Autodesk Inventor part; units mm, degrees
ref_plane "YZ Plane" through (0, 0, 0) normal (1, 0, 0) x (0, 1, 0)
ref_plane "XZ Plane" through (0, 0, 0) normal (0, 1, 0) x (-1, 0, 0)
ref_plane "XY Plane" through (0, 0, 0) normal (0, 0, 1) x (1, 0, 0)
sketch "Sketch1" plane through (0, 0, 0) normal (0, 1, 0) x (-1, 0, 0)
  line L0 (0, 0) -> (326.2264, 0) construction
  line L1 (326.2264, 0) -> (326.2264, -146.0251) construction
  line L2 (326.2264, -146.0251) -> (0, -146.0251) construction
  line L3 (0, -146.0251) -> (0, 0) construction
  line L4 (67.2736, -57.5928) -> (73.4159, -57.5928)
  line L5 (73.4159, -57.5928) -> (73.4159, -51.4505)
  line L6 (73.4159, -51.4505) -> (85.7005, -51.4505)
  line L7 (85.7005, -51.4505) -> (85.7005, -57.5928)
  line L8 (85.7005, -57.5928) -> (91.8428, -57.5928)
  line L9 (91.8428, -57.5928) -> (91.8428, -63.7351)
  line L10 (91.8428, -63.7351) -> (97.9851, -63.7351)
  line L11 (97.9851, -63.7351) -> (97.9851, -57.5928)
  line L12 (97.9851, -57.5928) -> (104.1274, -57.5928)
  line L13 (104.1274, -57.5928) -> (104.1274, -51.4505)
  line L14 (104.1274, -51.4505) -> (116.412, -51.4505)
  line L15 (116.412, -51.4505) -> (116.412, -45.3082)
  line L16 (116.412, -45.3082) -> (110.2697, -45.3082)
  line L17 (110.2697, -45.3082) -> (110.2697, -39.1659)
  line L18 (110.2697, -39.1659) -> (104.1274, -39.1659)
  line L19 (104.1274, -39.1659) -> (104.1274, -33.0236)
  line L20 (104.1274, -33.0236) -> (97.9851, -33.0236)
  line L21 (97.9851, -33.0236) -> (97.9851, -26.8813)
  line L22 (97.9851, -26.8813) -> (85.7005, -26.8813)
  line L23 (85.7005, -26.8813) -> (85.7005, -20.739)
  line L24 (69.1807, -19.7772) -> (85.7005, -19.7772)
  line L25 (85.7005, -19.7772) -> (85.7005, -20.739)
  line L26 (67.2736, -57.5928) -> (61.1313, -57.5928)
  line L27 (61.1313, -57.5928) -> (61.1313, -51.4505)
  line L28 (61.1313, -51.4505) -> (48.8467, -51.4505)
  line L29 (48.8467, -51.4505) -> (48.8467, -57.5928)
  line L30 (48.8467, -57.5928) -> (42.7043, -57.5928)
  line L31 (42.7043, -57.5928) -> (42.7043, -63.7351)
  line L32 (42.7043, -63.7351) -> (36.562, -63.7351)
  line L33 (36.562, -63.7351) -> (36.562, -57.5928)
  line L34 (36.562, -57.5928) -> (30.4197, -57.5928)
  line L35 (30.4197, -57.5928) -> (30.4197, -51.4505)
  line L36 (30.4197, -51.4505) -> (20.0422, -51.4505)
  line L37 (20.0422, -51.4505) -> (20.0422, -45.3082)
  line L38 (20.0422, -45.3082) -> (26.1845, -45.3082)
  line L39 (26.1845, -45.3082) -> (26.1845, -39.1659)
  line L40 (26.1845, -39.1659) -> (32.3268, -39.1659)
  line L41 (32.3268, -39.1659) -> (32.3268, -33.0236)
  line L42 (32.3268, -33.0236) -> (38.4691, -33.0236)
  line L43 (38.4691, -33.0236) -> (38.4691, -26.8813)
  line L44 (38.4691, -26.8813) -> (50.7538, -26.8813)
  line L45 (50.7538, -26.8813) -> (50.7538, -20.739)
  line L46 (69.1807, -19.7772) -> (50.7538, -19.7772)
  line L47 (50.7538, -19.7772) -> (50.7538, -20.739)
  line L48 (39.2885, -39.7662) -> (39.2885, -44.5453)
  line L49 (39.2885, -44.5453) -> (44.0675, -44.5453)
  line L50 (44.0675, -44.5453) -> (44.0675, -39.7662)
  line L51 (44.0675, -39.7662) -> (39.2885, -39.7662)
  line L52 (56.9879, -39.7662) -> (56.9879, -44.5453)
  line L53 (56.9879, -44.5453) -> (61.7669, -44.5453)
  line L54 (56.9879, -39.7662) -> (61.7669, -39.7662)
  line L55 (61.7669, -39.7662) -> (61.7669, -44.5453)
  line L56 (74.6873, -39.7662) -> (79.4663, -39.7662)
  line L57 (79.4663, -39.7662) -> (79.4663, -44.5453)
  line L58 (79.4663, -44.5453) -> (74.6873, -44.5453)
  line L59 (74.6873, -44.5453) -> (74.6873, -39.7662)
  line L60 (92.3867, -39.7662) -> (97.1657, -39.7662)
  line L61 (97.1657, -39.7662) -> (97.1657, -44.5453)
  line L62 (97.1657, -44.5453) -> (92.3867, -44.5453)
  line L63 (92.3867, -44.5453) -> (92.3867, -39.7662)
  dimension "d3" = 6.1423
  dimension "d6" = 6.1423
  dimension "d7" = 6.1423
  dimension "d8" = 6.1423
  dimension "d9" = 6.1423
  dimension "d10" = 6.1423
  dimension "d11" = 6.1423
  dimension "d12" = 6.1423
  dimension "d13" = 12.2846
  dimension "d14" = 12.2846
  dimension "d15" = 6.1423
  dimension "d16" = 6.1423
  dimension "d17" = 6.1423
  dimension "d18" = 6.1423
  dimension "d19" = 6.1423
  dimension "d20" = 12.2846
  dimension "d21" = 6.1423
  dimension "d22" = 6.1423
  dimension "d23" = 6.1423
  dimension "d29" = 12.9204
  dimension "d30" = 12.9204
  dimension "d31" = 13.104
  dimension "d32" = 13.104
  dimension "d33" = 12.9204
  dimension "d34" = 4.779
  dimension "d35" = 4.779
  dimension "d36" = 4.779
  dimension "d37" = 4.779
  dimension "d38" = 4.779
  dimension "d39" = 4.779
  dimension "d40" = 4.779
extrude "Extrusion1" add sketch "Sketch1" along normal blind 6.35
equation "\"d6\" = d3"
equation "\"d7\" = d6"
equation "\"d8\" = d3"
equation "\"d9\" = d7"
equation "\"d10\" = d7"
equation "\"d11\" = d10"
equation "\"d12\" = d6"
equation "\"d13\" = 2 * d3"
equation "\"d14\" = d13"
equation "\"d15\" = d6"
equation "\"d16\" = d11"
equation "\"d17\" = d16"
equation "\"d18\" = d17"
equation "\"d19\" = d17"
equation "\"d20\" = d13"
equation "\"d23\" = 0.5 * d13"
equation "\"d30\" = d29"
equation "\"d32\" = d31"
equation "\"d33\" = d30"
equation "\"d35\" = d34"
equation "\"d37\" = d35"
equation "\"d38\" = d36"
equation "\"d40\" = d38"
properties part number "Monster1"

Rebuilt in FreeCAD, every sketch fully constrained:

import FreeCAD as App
import Part
import Sketcher
from FreeCAD import Vector
Q = App.Units.Quantity

doc = App.newDocument("Part")
body = doc.addObject("PartDesign::Body", "Body")

# Sketch on XZ plane
sketch1 = body.newObject("Sketcher::SketchObject", "Sketch")
sketch1.AttachmentSupport = (doc.getObject("XZ_Plane"), [""])
sketch1.MapMode = "FlatFace"
sketch1.addGeometry([
    Part.LineSegment(Vector(-61.1313, -57.5928, 0), Vector(-73.4159, -57.5928, 0)),  # 0
    Part.LineSegment(Vector(-73.4159, -57.5928, 0), Vector(-73.4159, -51.4505, 0)),  # 1
    Part.LineSegment(Vector(-73.4159, -51.4505, 0), Vector(-85.7005, -51.4505, 0)),  # 2
    Part.LineSegment(Vector(-85.7005, -51.4505, 0), Vector(-85.7005, -57.5928, 0)),  # 3
    Part.LineSegment(Vector(-85.7005, -57.5928, 0), Vector(-91.8428, -57.5928, 0)),  # 4
    Part.LineSegment(Vector(-91.8428, -57.5928, 0), Vector(-91.8428, -63.7351, 0)),  # 5
    Part.LineSegment(Vector(-91.8428, -63.7351, 0), Vector(-97.9851, -63.7351, 0)),  # 6
    Part.LineSegment(Vector(-97.9851, -63.7351, 0), Vector(-97.9851, -57.5928, 0)),  # 7
    Part.LineSegment(Vector(-97.9851, -57.5928, 0), Vector(-104.1274, -57.5928, 0)),  # 8
    Part.LineSegment(Vector(-104.1274, -57.5928, 0), Vector(-104.1274, -51.4505, 0)),  # 9
    Part.LineSegment(Vector(-104.1274, -51.4505, 0), Vector(-116.412, -51.4505, 0)),  # 10
    Part.LineSegment(Vector(-116.412, -51.4505, 0), Vector(-116.412, -45.3082, 0)),  # 11
    Part.LineSegment(Vector(-116.412, -45.3082, 0), Vector(-110.2697, -45.3082, 0)),  # 12
    Part.LineSegment(Vector(-110.2697, -45.3082, 0), Vector(-110.2697, -39.1659, 0)),  # 13
    Part.LineSegment(Vector(-110.2697, -39.1659, 0), Vector(-104.1274, -39.1659, 0)),  # 14
    Part.LineSegment(Vector(-104.1274, -39.1659, 0), Vector(-104.1274, -33.0236, 0)),  # 15
    Part.LineSegment(Vector(-104.1274, -33.0236, 0), Vector(-97.9851, -33.0236, 0)),  # 16
    Part.LineSegment(Vector(-97.9851, -33.0236, 0), Vector(-97.9851, -26.8813, 0)),  # 17
    Part.LineSegment(Vector(-97.9851, -26.8813, 0), Vector(-85.7005, -26.8813, 0)),  # 18
    Part.LineSegment(Vector(-85.7005, -26.8813, 0), Vector(-85.7005, -19.7772, 0)),  # 19
    Part.LineSegment(Vector(-85.7005, -19.7772, 0), Vector(-50.7538, -19.7772, 0)),  # 20
    Part.LineSegment(Vector(-50.7538, -19.7772, 0), Vector(-50.7538, -26.8813, 0)),  # 21
    Part.LineSegment(Vector(-50.7538, -26.8813, 0), Vector(-38.4691, -26.8813, 0)),  # 22
    Part.LineSegment(Vector(-38.4691, -26.8813, 0), Vector(-38.4691, -33.0236, 0)),  # 23
    Part.LineSegment(Vector(-38.4691, -33.0236, 0), Vector(-32.3268, -33.0236, 0)),  # 24
    Part.LineSegment(Vector(-32.3268, -33.0236, 0), Vector(-32.3268, -39.1659, 0)),  # 25
    Part.LineSegment(Vector(-32.3268, -39.1659, 0), Vector(-26.1845, -39.1659, 0)),  # 26
    Part.LineSegment(Vector(-26.1845, -39.1659, 0), Vector(-26.1845, -45.3082, 0)),  # 27
    Part.LineSegment(Vector(-26.1845, -45.3082, 0), Vector(-20.0422, -45.3082, 0)),  # 28
    Part.LineSegment(Vector(-20.0422, -45.3082, 0), Vector(-20.0422, -51.4505, 0)),  # 29
    Part.LineSegment(Vector(-20.0422, -51.4505, 0), Vector(-30.4197, -51.4505, 0)),  # 30
    Part.LineSegment(Vector(-30.4197, -51.4505, 0), Vector(-30.4197, -57.5928, 0)),  # 31
    Part.LineSegment(Vector(-30.4197, -57.5928, 0), Vector(-36.562, -57.5928, 0)),  # 32
    Part.LineSegment(Vector(-36.562, -57.5928, 0), Vector(-36.562, -63.7351, 0)),  # 33
    Part.LineSegment(Vector(-36.562, -63.7351, 0), Vector(-42.7043, -63.7351, 0)),  # 34
    Part.LineSegment(Vector(-42.7043, -63.7351, 0), Vector(-42.7043, -57.5928, 0)),  # 35
    Part.LineSegment(Vector(-42.7043, -57.5928, 0), Vector(-48.8467, -57.5928, 0)),  # 36
    Part.LineSegment(Vector(-48.8467, -57.5928, 0), Vector(-48.8467, -51.4505, 0)),  # 37
    Part.LineSegment(Vector(-48.8467, -51.4505, 0), Vector(-61.1313, -51.4505, 0)),  # 38
    Part.LineSegment(Vector(-61.1313, -51.4505, 0), Vector(-61.1313, -57.5928, 0)),  # 39
    Part.LineSegment(Vector(-39.2885, -44.5453, 0), Vector(-39.2885, -39.7662, 0)),  # 40
    Part.LineSegment(Vector(-39.2885, -39.7662, 0), Vector(-44.0675, -39.7662, 0)),  # 41
    Part.LineSegment(Vector(-44.0675, -39.7662, 0), Vector(-44.0675, -44.5453, 0)),  # 42
    Part.LineSegment(Vector(-44.0675, -44.5453, 0), Vector(-39.2885, -44.5453, 0)),  # 43
    Part.LineSegment(Vector(-56.9879, -44.5453, 0), Vector(-56.9879, -39.7662, 0)),  # 44
    Part.LineSegment(Vector(-56.9879, -39.7662, 0), Vector(-61.7669, -39.7662, 0)),  # 45
    Part.LineSegment(Vector(-61.7669, -39.7662, 0), Vector(-61.7669, -44.5453, 0)),  # 46
    Part.LineSegment(Vector(-61.7669, -44.5453, 0), Vector(-56.9879, -44.5453, 0)),  # 47
    Part.LineSegment(Vector(-74.6873, -44.5453, 0), Vector(-74.6873, -39.7662, 0)),  # 48
    Part.LineSegment(Vector(-74.6873, -39.7662, 0), Vector(-79.4663, -39.7662, 0)),  # 49
    Part.LineSegment(Vector(-79.4663, -39.7662, 0), Vector(-79.4663, -44.5453, 0)),  # 50
    Part.LineSegment(Vector(-79.4663, -44.5453, 0), Vector(-74.6873, -44.5453, 0)),  # 51
    Part.LineSegment(Vector(-92.3867, -44.5453, 0), Vector(-92.3867, -39.7662, 0)),  # 52
    Part.LineSegment(Vector(-92.3867, -39.7662, 0), Vector(-97.1657, -39.7662, 0)),  # 53
    Part.LineSegment(Vector(-97.1657, -39.7662, 0), Vector(-97.1657, -44.5453, 0)),  # 54
    Part.LineSegment(Vector(-97.1657, -44.5453, 0), Vector(-92.3867, -44.5453, 0)),  # 55
], False)
sketch1.addConstraint([
    Sketcher.Constraint("Coincident", 0, 2, 1, 1),
    Sketcher.Constraint("Coincident", 1, 2, 2, 1),
    Sketcher.Constraint("Coincident", 2, 2, 3, 1),
    Sketcher.Constraint("Coincident", 3, 2, 4, 1),
    Sketcher.Constraint("Coincident", 4, 2, 5, 1),
    Sketcher.Constraint("Coincident", 5, 2, 6, 1),
    Sketcher.Constraint("Coincident", 6, 2, 7, 1),
    Sketcher.Constraint("Coincident", 7, 2, 8, 1),
    Sketcher.Constraint("Coincident", 8, 2, 9, 1),
    Sketcher.Constraint("Coincident", 9, 2, 10, 1),
    Sketcher.Constraint("Coincident", 10, 2, 11, 1),
    Sketcher.Constraint("Coincident", 11, 2, 12, 1),
    Sketcher.Constraint("Coincident", 12, 2, 13, 1),
    Sketcher.Constraint("Coincident", 13, 2, 14, 1),
    Sketcher.Constraint("Coincident", 14, 2, 15, 1),
    Sketcher.Constraint("Coincident", 15, 2, 16, 1),
    Sketcher.Constraint("Coincident", 16, 2, 17, 1),
    Sketcher.Constraint("Coincident", 17, 2, 18, 1),
    Sketcher.Constraint("Coincident", 18, 2, 19, 1),
    Sketcher.Constraint("Coincident", 19, 2, 20, 1),
    Sketcher.Constraint("Coincident", 20, 2, 21, 1),
    Sketcher.Constraint("Coincident", 21, 2, 22, 1),
    Sketcher.Constraint("Coincident", 22, 2, 23, 1),
    Sketcher.Constraint("Coincident", 23, 2, 24, 1),
    Sketcher.Constraint("Coincident", 24, 2, 25, 1),
    Sketcher.Constraint("Coincident", 25, 2, 26, 1),
    Sketcher.Constraint("Coincident", 26, 2, 27, 1),
    Sketcher.Constraint("Coincident", 27, 2, 28, 1),
    Sketcher.Constraint("Coincident", 28, 2, 29, 1),
    Sketcher.Constraint("Coincident", 29, 2, 30, 1),
    Sketcher.Constraint("Coincident", 30, 2, 31, 1),
    Sketcher.Constraint("Coincident", 31, 2, 32, 1),
    Sketcher.Constraint("Coincident", 32, 2, 33, 1),
    Sketcher.Constraint("Coincident", 33, 2, 34, 1),
    Sketcher.Constraint("Coincident", 34, 2, 35, 1),
    Sketcher.Constraint("Coincident", 35, 2, 36, 1),
    Sketcher.Constraint("Coincident", 36, 2, 37, 1),
    Sketcher.Constraint("Coincident", 37, 2, 38, 1),
    Sketcher.Constraint("Coincident", 38, 2, 39, 1),
    Sketcher.Constraint("Coincident", 39, 2, 0, 1),
    Sketcher.Constraint("Coincident", 40, 2, 41, 1),
    Sketcher.Constraint("Coincident", 41, 2, 42, 1),
    Sketcher.Constraint("Coincident", 42, 2, 43, 1),
    Sketcher.Constraint("Coincident", 43, 2, 40, 1),
    Sketcher.Constraint("Coincident", 44, 2, 45, 1),
    Sketcher.Constraint("Coincident", 45, 2, 46, 1),
    Sketcher.Constraint("Coincident", 46, 2, 47, 1),
    Sketcher.Constraint("Coincident", 47, 2, 44, 1),
    Sketcher.Constraint("Coincident", 48, 2, 49, 1),
    Sketcher.Constraint("Coincident", 49, 2, 50, 1),
    Sketcher.Constraint("Coincident", 50, 2, 51, 1),
    Sketcher.Constraint("Coincident", 51, 2, 48, 1),
    Sketcher.Constraint("Coincident", 52, 2, 53, 1),
    Sketcher.Constraint("Coincident", 53, 2, 54, 1),
    Sketcher.Constraint("Coincident", 54, 2, 55, 1),
    Sketcher.Constraint("Coincident", 55, 2, 52, 1),
    Sketcher.Constraint("Horizontal", 0),
    Sketcher.Constraint("Vertical", 1),
    Sketcher.Constraint("Horizontal", 2),
    Sketcher.Constraint("Vertical", 3),
    Sketcher.Constraint("Horizontal", 4),
    Sketcher.Constraint("Vertical", 5),
    Sketcher.Constraint("Horizontal", 6),
    Sketcher.Constraint("Vertical", 7),
    Sketcher.Constraint("Horizontal", 8),
    Sketcher.Constraint("Vertical", 9),
    Sketcher.Constraint("Horizontal", 10),
    Sketcher.Constraint("Vertical", 11),
    Sketcher.Constraint("Horizontal", 12),
    Sketcher.Constraint("Vertical", 13),
    Sketcher.Constraint("Horizontal", 14),
    Sketcher.Constraint("Vertical", 15),
    Sketcher.Constraint("Horizontal", 16),
    Sketcher.Constraint("Vertical", 17),
    Sketcher.Constraint("Horizontal", 18),
    Sketcher.Constraint("Vertical", 19),
    Sketcher.Constraint("Horizontal", 20),
    Sketcher.Constraint("Vertical", 21),
    Sketcher.Constraint("Horizontal", 22),
    Sketcher.Constraint("Vertical", 23),
    Sketcher.Constraint("Horizontal", 24),
    Sketcher.Constraint("Vertical", 25),
    Sketcher.Constraint("Horizontal", 26),
    Sketcher.Constraint("Vertical", 27),
    Sketcher.Constraint("Horizontal", 28),
    Sketcher.Constraint("Vertical", 29),
    Sketcher.Constraint("Horizontal", 30),
    Sketcher.Constraint("Vertical", 31),
    Sketcher.Constraint("Horizontal", 32),
    Sketcher.Constraint("Vertical", 33),
    Sketcher.Constraint("Horizontal", 34),
    Sketcher.Constraint("Vertical", 35),
    Sketcher.Constraint("Horizontal", 36),
    Sketcher.Constraint("Vertical", 37),
    Sketcher.Constraint("Horizontal", 38),
    Sketcher.Constraint("Vertical", 39),
    Sketcher.Constraint("Vertical", 40),
    Sketcher.Constraint("Horizontal", 41),
    Sketcher.Constraint("Vertical", 42),
    Sketcher.Constraint("Horizontal", 43),
    Sketcher.Constraint("Vertical", 44),
    Sketcher.Constraint("Horizontal", 45),
    Sketcher.Constraint("Vertical", 46),
    Sketcher.Constraint("Horizontal", 47),
    Sketcher.Constraint("Vertical", 48),
    Sketcher.Constraint("Horizontal", 49),
    Sketcher.Constraint("Vertical", 50),
    Sketcher.Constraint("Horizontal", 51),
    Sketcher.Constraint("Vertical", 52),
    Sketcher.Constraint("Horizontal", 53),
    Sketcher.Constraint("Vertical", 54),
    Sketcher.Constraint("Horizontal", 55),
    Sketcher.Constraint("Horizontal", 0, 2, 3, 2),
    Sketcher.Constraint("Horizontal", 4, 2, 7, 2),
    Sketcher.Constraint("Horizontal", 2, 2, 9, 2),
    Sketcher.Constraint("Horizontal", 18, 2, 21, 2),
    Sketcher.Constraint("Horizontal", 16, 2, 23, 2),
    Sketcher.Constraint("Horizontal", 14, 2, 25, 2),
    Sketcher.Constraint("Horizontal", 12, 2, 27, 2),
    Sketcher.Constraint("Horizontal", 10, 2, 29, 2),
    Sketcher.Constraint("Horizontal", 8, 2, 31, 2),
    Sketcher.Constraint("Horizontal", 6, 2, 33, 2),
    Sketcher.Constraint("Horizontal", 32, 2, 35, 2),
    Sketcher.Constraint("Horizontal", 30, 2, 37, 2),
    Sketcher.Constraint("Horizontal", 41, 2, 44, 2),
    Sketcher.Constraint("Horizontal", 43, 2, 46, 2),
    Sketcher.Constraint("Horizontal", 45, 2, 48, 2),
    Sketcher.Constraint("Horizontal", 47, 2, 50, 2),
    Sketcher.Constraint("Horizontal", 49, 2, 52, 2),
    Sketcher.Constraint("Horizontal", 51, 2, 54, 2),
    Sketcher.Constraint("Vertical", 9, 2, 14, 2),
    Sketcher.Constraint("Vertical", 7, 2, 16, 2),
    Sketcher.Constraint("Vertical", 3, 2, 18, 2),
    Sketcher.Constraint("Equal", 0, 2),
    Sketcher.Constraint("Equal", 4, 6),
    Sketcher.Constraint("Equal", 6, 8),
    Sketcher.Constraint("Equal", 2, 10),
    Sketcher.Constraint("Equal", 8, 12),
    Sketcher.Constraint("Equal", 12, 14),
    Sketcher.Constraint("Equal", 18, 22),
    Sketcher.Constraint("Equal", 16, 24),
    Sketcher.Constraint("Equal", 24, 26),
    Sketcher.Constraint("Equal", 26, 28),
    Sketcher.Constraint("Equal", 28, 32),
    Sketcher.Constraint("Equal", 32, 34),
    Sketcher.Constraint("Equal", 34, 36),
    Sketcher.Constraint("Equal", 22, 38),
    Sketcher.Constraint("Equal", 43, 45),
    Sketcher.Constraint("Equal", 47, 49),
    Sketcher.Constraint("Equal", 51, 53),
    Sketcher.Constraint("Equal", 36, 1),
    Sketcher.Constraint("Equal", 3, 5),
    Sketcher.Constraint("Equal", 9, 11),
    Sketcher.Constraint("Equal", 11, 13),
    Sketcher.Constraint("Equal", 13, 15),
    Sketcher.Constraint("Equal", 15, 17),
    Sketcher.Constraint("Equal", 55, 40),
    Sketcher.Constraint("DistanceX", 0, 2, 0, 1, 12.2846),
    Sketcher.Constraint("DistanceX", 41, 2, 41, 1, 4.779),
    Sketcher.Constraint("DistanceX", 40, 2, 26, 2, Q("0.5159 in")),
    Sketcher.Constraint("DistanceX", 37, 2, 41, 2, 4.7792),
    Sketcher.Constraint("DistanceY", 37, 2, 41, 2, Q("0.46 in")),
    Sketcher.Constraint("DistanceX", 44, 2, 41, 2, 12.9204),
    Sketcher.Constraint("DistanceX", 48, 2, 45, 2, 12.9204),
    Sketcher.Constraint("DistanceX", 52, 2, 49, 2, 12.9204),
    Sketcher.Constraint("DistanceY", 19, 1, 19, 2, Q("0.2797 in")),
    Sketcher.Constraint("DistanceX", 0, 2, -1, 1, Q("2.8904 in")),
    Sketcher.Constraint("DistanceY", 1, 2, -1, 1, Q("2.0256 in")),
])
pad1 = body.newObject("PartDesign::Pad", "Pad")
pad1.Profile = sketch1
pad1.Length = Q("0.25 in")
pad1.Reversed = True

doc.recompute()
